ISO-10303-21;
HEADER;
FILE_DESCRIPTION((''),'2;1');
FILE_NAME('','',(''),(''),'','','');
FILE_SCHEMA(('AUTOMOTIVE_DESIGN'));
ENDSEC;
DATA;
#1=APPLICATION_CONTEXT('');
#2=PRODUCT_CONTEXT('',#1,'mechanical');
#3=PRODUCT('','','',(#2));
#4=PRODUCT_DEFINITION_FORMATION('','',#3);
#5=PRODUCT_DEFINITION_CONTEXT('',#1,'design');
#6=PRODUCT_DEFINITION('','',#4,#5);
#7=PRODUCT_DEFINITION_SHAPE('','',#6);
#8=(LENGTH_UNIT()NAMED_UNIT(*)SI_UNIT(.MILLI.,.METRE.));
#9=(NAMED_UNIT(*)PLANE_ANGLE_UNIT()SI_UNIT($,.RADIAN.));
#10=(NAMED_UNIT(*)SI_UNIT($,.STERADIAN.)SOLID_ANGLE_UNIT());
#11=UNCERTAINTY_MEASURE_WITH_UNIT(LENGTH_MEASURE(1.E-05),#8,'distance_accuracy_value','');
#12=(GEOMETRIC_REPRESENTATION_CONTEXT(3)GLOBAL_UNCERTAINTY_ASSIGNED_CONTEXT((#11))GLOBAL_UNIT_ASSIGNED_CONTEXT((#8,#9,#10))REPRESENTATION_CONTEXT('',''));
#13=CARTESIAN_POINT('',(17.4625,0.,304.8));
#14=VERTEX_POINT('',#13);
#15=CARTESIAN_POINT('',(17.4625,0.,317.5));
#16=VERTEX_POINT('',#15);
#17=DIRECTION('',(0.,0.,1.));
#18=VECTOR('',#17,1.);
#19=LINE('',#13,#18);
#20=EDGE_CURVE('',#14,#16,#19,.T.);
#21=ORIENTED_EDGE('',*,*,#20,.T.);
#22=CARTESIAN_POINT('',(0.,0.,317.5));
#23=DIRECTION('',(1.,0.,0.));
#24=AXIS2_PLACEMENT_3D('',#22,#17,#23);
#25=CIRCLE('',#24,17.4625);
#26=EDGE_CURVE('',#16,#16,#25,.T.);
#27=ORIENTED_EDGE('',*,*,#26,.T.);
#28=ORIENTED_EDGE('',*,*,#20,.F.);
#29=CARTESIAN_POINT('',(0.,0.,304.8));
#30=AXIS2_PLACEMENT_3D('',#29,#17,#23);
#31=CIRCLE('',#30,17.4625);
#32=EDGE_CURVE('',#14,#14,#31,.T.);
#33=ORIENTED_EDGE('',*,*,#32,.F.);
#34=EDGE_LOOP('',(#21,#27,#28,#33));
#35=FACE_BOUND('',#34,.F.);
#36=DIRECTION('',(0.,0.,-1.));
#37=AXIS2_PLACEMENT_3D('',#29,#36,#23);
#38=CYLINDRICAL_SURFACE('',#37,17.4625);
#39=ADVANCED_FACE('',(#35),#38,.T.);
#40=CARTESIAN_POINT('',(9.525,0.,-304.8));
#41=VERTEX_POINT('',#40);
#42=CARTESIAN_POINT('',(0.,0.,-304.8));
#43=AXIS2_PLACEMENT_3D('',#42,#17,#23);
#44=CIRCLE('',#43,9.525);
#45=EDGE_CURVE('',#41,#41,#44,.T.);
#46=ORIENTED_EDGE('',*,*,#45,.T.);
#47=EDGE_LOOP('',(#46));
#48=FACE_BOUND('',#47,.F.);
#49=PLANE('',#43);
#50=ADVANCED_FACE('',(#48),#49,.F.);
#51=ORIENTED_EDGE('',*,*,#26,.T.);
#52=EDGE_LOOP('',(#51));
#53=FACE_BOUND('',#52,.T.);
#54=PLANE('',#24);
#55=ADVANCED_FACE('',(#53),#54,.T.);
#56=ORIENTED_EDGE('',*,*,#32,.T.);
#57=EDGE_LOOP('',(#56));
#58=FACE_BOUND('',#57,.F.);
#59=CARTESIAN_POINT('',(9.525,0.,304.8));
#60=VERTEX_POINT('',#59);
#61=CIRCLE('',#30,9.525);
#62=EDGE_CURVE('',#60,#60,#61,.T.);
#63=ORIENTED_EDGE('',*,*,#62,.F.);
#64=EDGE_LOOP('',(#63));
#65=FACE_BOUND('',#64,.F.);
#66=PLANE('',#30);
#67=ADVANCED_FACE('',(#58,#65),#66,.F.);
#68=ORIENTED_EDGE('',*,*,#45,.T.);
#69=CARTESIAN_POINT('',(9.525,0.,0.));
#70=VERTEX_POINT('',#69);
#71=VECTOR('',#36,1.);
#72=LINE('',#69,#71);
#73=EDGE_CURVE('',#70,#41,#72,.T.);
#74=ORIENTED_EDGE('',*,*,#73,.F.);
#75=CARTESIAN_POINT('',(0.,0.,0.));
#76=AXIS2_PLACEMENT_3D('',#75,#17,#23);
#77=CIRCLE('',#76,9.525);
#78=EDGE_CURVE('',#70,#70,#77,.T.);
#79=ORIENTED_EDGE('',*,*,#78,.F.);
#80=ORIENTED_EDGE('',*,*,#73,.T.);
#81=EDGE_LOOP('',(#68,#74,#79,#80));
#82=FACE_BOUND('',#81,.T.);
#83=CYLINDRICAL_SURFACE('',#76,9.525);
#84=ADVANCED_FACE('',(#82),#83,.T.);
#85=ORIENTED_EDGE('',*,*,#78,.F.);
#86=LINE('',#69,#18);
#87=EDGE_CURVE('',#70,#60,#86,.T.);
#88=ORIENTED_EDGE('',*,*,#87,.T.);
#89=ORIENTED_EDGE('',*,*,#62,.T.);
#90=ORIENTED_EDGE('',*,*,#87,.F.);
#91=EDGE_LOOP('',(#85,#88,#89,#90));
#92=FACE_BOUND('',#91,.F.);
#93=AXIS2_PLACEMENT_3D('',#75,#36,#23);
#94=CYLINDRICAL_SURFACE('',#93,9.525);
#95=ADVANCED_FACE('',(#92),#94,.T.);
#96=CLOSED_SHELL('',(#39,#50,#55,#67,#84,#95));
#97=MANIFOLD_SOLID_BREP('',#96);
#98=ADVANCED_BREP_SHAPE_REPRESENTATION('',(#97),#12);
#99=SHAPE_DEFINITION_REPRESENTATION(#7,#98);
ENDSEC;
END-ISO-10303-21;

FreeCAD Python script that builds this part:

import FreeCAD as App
import Part
import Sketcher
from FreeCAD import Vector
Q = App.Units.Quantity

doc = App.newDocument("Part")
body = doc.addObject("PartDesign::Body", "Body")

sketch1 = body.newObject("Sketcher::SketchObject", "Sketch")
sketch1.AttachmentSupport = (doc.getObject("XY_Plane"), [""])
sketch1.MapMode = "FlatFace"
sketch1.addGeometry(Part.Circle(Vector(0, 0, 0), Vector(0, 0, 1), 10), False)
sketch1.addConstraint([
    Sketcher.Constraint("Coincident", 0, 3, -1, 1),
    Sketcher.Constraint("Diameter", 0, Q("0.75 in")),
])
pad1 = body.newObject("PartDesign::Pad", "Pad")
pad1.Profile = sketch1
pad1.Length = Q("24 in")
pad1.Midplane = True

sketch2 = body.newObject("Sketcher::SketchObject", "Sketch001")
sketch2.AttachmentSupport = (doc.getObject("XY_Plane"), [""])
sketch2.MapMode = "FlatFace"
sketch2.AttachmentOffset = App.Placement(Vector(0, 0, 12 * 25.4), App.Rotation())
sketch2.addGeometry(Part.Circle(Vector(0, 0, 0), Vector(0, 0, 1), 17), False)
sketch2.addConstraint([
    Sketcher.Constraint("Coincident", 0, 3, -1, 1),
    Sketcher.Constraint("Diameter", 0, Q("1.375 in")),
])
pad2 = body.newObject("PartDesign::Pad", "Pad001")
pad2.Profile = sketch2
pad2.Length = Q("0.5 in")

doc.recompute()
